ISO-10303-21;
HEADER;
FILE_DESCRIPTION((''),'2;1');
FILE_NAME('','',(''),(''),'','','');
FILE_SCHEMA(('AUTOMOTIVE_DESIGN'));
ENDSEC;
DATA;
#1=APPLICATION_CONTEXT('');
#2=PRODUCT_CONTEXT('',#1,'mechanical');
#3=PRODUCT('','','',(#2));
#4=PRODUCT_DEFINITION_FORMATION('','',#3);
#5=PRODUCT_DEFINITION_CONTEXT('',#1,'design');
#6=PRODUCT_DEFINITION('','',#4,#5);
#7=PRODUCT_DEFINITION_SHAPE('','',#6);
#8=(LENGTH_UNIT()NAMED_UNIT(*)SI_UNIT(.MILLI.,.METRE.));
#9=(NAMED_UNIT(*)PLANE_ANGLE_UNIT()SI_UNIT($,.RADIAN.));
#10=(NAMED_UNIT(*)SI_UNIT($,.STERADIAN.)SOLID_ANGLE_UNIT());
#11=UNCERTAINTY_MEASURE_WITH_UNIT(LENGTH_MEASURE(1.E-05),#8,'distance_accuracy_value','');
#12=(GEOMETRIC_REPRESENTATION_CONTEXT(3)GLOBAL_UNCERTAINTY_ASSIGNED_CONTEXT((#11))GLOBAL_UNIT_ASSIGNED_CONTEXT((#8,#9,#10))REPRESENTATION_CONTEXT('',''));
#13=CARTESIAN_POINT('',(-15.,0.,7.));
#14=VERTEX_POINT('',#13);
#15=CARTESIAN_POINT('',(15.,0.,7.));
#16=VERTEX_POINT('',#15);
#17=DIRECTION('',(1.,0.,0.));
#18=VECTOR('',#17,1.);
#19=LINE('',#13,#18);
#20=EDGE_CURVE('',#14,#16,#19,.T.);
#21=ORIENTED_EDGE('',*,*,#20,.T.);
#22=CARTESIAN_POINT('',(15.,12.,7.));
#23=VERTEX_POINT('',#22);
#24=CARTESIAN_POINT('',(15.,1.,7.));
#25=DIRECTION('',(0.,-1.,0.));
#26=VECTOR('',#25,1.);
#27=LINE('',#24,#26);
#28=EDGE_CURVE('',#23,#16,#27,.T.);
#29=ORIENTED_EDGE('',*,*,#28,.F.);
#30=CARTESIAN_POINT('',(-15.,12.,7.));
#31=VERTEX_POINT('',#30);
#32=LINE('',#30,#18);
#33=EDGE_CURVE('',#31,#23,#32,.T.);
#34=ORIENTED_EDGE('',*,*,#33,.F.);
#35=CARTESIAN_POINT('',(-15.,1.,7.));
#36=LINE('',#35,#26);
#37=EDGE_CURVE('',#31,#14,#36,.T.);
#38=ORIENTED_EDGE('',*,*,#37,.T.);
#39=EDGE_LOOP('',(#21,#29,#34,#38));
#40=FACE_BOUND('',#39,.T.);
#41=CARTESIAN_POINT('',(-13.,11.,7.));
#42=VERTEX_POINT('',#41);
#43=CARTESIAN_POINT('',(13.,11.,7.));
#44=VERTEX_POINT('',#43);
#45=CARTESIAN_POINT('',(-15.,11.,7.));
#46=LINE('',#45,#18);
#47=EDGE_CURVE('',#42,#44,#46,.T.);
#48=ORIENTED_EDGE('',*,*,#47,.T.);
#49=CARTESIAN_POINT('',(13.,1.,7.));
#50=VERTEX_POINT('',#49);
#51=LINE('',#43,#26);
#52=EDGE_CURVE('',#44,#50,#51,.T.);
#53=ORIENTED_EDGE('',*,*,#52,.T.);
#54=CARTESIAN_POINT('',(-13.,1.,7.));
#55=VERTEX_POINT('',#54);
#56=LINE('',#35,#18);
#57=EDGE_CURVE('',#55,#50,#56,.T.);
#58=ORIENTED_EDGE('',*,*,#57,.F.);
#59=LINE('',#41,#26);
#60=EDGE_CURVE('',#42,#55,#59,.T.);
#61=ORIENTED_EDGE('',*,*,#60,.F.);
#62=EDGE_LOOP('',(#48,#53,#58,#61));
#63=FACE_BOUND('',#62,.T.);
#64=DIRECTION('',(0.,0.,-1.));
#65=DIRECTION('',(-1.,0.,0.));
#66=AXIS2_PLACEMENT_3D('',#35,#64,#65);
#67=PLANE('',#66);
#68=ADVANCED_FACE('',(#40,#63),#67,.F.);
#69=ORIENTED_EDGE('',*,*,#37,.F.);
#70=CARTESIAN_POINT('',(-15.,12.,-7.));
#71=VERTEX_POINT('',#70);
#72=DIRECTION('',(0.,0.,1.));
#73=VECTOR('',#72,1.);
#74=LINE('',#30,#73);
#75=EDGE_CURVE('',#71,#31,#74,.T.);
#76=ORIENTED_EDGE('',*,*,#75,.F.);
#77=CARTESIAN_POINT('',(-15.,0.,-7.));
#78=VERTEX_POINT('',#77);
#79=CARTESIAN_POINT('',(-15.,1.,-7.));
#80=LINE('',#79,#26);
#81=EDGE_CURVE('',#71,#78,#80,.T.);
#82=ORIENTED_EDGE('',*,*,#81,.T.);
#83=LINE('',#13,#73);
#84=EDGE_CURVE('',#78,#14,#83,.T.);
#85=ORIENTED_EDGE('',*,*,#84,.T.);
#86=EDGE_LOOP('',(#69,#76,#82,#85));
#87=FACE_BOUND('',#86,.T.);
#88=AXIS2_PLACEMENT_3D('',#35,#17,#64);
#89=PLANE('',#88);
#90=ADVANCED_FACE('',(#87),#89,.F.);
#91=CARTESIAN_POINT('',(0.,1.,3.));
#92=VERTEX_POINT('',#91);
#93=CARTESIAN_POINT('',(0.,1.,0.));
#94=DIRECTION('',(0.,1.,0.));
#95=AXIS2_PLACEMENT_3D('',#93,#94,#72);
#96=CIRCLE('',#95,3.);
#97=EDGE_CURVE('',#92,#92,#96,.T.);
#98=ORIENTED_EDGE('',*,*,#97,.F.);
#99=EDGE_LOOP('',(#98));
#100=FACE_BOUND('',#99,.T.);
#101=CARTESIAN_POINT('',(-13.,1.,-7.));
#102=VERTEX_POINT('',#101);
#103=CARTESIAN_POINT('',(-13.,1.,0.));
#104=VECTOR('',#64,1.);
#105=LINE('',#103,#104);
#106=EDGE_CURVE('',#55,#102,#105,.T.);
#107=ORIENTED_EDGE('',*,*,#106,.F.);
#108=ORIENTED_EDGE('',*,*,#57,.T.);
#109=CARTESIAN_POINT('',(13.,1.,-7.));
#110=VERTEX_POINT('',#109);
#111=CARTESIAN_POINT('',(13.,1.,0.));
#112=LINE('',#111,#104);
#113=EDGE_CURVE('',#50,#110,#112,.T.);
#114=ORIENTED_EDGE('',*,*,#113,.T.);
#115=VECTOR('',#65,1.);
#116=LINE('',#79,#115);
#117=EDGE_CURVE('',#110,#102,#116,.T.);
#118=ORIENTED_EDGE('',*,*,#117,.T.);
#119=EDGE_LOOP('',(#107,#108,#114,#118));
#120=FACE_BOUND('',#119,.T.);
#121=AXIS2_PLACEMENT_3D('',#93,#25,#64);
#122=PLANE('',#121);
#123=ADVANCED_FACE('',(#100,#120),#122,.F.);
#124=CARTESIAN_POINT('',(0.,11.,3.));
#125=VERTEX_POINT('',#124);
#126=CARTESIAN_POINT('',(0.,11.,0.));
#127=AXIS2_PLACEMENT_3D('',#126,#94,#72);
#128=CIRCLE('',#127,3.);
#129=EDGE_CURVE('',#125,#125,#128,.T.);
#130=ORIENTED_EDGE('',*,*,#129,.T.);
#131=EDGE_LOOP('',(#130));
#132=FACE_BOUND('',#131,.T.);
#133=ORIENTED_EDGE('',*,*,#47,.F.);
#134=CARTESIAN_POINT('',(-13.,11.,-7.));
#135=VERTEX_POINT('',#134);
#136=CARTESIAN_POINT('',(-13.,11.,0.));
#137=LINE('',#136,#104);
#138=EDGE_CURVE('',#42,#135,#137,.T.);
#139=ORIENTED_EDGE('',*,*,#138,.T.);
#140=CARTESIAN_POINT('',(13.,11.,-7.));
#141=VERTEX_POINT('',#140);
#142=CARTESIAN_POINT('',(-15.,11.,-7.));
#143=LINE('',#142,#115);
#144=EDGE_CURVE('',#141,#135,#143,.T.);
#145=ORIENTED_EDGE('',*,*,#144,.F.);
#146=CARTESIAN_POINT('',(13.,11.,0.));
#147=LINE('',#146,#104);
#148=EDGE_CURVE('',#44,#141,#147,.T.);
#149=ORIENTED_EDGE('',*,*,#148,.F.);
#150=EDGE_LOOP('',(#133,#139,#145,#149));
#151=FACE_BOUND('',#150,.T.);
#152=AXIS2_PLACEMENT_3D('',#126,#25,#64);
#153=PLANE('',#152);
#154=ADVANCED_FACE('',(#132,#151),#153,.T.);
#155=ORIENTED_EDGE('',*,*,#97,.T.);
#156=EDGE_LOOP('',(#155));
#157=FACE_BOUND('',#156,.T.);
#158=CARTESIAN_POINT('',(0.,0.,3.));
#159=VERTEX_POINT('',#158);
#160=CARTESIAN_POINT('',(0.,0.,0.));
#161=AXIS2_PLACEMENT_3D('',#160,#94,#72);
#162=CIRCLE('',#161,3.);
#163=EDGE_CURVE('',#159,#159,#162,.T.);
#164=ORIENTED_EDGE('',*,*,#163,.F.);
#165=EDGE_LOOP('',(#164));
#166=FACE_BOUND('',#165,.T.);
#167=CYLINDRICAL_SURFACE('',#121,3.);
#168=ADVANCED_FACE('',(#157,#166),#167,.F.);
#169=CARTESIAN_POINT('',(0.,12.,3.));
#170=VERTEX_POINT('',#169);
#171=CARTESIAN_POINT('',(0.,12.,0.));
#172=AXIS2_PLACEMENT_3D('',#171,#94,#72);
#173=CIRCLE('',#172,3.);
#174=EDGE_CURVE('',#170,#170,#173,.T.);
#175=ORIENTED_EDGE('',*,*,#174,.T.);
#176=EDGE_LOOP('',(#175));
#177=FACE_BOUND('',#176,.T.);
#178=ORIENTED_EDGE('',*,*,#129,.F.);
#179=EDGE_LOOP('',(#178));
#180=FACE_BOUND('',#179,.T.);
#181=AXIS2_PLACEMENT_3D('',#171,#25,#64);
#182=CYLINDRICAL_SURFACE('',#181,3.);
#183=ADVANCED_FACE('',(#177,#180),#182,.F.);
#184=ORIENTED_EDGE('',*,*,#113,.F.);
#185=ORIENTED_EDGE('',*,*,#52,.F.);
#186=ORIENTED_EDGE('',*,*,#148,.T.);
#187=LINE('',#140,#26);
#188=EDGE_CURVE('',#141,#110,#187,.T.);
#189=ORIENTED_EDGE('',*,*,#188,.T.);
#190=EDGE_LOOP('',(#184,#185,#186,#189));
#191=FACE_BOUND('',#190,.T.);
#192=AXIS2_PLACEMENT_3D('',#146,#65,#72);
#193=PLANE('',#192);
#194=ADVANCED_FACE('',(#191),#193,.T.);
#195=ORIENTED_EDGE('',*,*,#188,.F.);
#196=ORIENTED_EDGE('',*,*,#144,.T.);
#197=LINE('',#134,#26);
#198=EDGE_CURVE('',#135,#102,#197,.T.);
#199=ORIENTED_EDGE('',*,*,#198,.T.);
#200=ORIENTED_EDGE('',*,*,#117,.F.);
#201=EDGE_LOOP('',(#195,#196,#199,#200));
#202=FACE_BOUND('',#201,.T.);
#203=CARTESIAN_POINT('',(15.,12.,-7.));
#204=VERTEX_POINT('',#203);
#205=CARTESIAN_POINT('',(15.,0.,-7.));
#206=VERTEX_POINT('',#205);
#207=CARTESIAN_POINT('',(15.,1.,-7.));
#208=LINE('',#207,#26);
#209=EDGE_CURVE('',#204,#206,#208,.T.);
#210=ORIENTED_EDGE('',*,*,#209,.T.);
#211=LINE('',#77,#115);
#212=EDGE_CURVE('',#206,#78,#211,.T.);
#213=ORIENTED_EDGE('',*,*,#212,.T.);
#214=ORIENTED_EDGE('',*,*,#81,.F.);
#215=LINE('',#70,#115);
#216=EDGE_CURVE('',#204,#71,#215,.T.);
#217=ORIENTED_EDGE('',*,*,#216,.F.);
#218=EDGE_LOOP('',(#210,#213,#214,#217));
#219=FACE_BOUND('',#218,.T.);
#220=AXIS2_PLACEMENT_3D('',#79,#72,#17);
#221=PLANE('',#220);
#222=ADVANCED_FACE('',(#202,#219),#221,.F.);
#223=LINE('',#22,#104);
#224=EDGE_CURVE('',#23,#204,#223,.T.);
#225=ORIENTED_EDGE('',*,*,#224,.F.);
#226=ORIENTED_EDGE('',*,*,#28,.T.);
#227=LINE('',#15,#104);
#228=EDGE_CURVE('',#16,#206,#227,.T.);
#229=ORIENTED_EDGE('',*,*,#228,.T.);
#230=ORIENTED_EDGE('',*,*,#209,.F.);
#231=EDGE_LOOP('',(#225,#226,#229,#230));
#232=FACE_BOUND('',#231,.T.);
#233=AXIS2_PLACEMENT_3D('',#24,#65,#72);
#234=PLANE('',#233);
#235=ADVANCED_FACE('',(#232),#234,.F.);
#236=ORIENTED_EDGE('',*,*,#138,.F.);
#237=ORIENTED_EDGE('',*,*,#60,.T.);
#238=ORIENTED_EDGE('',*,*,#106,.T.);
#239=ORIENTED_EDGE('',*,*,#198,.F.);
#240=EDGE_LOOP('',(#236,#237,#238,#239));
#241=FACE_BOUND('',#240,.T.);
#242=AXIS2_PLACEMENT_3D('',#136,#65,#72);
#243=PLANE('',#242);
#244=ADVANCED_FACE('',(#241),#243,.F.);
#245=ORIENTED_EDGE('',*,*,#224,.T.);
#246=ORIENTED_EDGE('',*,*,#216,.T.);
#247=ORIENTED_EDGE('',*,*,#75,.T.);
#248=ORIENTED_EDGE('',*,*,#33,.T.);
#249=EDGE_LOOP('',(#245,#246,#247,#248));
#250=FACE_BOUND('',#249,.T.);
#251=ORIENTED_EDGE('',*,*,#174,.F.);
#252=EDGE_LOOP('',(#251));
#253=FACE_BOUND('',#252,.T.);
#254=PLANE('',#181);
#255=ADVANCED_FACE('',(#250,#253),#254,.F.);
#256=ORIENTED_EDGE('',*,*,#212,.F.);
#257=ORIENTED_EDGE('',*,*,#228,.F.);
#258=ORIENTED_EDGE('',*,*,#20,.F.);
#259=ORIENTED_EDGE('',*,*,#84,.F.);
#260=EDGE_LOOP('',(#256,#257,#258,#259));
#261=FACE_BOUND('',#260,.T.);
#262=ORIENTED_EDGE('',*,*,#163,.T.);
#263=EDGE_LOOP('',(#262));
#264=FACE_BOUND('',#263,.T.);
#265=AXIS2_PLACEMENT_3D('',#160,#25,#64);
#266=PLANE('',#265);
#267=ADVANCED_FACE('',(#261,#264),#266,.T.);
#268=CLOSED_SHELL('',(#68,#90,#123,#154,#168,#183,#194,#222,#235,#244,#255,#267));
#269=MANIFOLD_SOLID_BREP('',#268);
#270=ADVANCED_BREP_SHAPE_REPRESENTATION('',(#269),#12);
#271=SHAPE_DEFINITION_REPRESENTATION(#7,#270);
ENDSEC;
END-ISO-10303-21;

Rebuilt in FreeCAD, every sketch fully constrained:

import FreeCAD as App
import Part
import Sketcher

V = App.Vector


def add_polygon(sketch, points):
    """Adds a closed chain of lines whose ends are joined by coincident constraints."""
    first, n = sketch.GeometryCount, len(points)
    for a, b in zip(points, points[1:] + points[:1]):
        sketch.addGeometry(Part.LineSegment(App.Vector(*a, 0), App.Vector(*b, 0)), False)
    for i in range(n):
        sketch.addConstraint(Sketcher.Constraint("Coincident", first + i, 2, first + (i + 1) % n, 1))

doc = App.newDocument("Part")
body = doc.addObject("PartDesign::Body", "Body")

sketch1 = body.newObject("Sketcher::SketchObject", "Sketch")
sketch1.AttachmentSupport = (doc.getObject("XZ_Plane"), [""])
sketch1.MapMode = "FlatFace"
add_polygon(sketch1, [(-15, -7), (-15, 7), (15, 7), (15, -7)])
sketch1.addGeometry(Part.Circle(V(0, 0, 0), V(0, 0, 1), 3), False)
sketch1.addConstraint([
    Sketcher.Constraint("Vertical", 0),
    Sketcher.Constraint("Horizontal", 1),
    Sketcher.Constraint("Vertical", 2),
    Sketcher.Constraint("Horizontal", 3),
    Sketcher.Constraint("Coincident", 4, 3, -1, 1),
    Sketcher.Constraint("Symmetric", 0, 2, 2, 2, -1, 1),
    Sketcher.Constraint("Diameter", 4, 6.0),
    Sketcher.Constraint("DistanceX", 1, 1, 1, 2, 30.0),
    Sketcher.Constraint("DistanceY", 0, 1, 0, 2, 14.0),
])
pad1 = body.newObject("PartDesign::Pad", "Pad")
pad1.Profile = sketch1
pad1.Length = 1
pad1.Reversed = True

sketch2 = body.newObject("Sketcher::SketchObject", "Sketch001")
sketch2.AttachmentSupport = (doc.getObject("XZ_Plane"), [""])
sketch2.MapMode = "FlatFace"
sketch2.AttachmentOffset = App.Placement(V(0, 0, -1), App.Rotation())
add_polygon(sketch2, [(-15, -7), (-15, 7), (-13, 7), (-13, -7)])
add_polygon(sketch2, [(13, -7), (13, 7), (15, 7), (15, -7)])
sketch2.addConstraint([
    Sketcher.Constraint("Vertical", 0),
    Sketcher.Constraint("Horizontal", 1),
    Sketcher.Constraint("Vertical", 2),
    Sketcher.Constraint("Horizontal", 3),
    Sketcher.Constraint("Vertical", 4),
    Sketcher.Constraint("Horizontal", 5),
    Sketcher.Constraint("Vertical", 6),
    Sketcher.Constraint("Horizontal", 7),
    Sketcher.Constraint("Symmetric", 2, 2, 4, 2, -1, 1),
    Sketcher.Constraint("Symmetric", 0, 2, 6, 2, -1, 1),
    Sketcher.Constraint("Horizontal", 1, 2, 4, 2),
    Sketcher.Constraint("DistanceX", 1, 1, 1, 2, 2.0),
    Sketcher.Constraint("DistanceY", 0, 1, 0, 2, 14.0),
    Sketcher.Constraint("DistanceX", 0, 2, -1, 1, 15.0),
])
pad2 = body.newObject("PartDesign::Pad", "Pad001")
pad2.Profile = sketch2
pad2.Length = 10
pad2.Reversed = True

sketch3 = body.newObject("Sketcher::SketchObject", "Sketch002")
sketch3.AttachmentSupport = (doc.getObject("XZ_Plane"), [""])
sketch3.MapMode = "FlatFace"
sketch3.AttachmentOffset = App.Placement(V(0, 0, -11), App.Rotation())
add_polygon(sketch3, [(-15, -7), (-15, 7), (15, 7), (15, -7)])
sketch3.addGeometry(Part.Circle(V(0, 0, 0), V(0, 0, 1), 3), False)
sketch3.addConstraint([
    Sketcher.Constraint("Vertical", 0),
    Sketcher.Constraint("Horizontal", 1),
    Sketcher.Constraint("Vertical", 2),
    Sketcher.Constraint("Horizontal", 3),
    Sketcher.Constraint("Coincident", 4, 3, -1, 1),
    Sketcher.Constraint("Symmetric", 0, 2, 2, 2, -1, 1),
    Sketcher.Constraint("Diameter", 4, 6.0),
    Sketcher.Constraint("DistanceX", 1, 1, 1, 2, 30.0),
    Sketcher.Constraint("DistanceY", 0, 1, 0, 2, 14.0),
])
pad3 = body.newObject("PartDesign::Pad", "Pad002")
pad3.Profile = sketch3
pad3.Length = 1
pad3.Reversed = True

doc.recompute()
